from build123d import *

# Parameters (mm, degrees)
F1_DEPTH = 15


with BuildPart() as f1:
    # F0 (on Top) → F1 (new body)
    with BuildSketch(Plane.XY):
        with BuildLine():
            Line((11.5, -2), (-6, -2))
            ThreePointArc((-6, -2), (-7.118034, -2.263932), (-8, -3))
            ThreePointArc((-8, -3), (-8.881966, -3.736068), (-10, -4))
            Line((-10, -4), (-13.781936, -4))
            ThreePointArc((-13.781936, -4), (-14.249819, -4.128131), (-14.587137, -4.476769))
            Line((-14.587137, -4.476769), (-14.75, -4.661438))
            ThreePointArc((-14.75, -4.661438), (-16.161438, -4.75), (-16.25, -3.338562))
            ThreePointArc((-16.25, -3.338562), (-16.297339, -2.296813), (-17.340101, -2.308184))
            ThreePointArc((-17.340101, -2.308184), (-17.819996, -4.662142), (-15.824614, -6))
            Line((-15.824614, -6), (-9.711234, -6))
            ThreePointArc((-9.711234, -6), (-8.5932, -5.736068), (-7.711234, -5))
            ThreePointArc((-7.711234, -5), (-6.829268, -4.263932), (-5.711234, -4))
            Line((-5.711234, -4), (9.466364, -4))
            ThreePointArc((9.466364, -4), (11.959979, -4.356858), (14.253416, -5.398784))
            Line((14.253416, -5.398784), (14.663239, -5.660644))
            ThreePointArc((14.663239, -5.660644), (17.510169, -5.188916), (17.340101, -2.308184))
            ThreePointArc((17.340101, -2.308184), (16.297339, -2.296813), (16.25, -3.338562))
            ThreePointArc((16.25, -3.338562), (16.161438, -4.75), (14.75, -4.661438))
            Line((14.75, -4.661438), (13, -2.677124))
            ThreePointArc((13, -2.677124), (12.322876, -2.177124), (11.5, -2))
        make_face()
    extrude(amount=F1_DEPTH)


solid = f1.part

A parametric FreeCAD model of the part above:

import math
import FreeCAD as App
import Part
import Sketcher

doc = App.newDocument("Part")
body = doc.addObject("PartDesign::Body", "Body")

# Sketch on XY plane
sketch1 = body.newObject("Sketcher::SketchObject", "Sketch")
sketch1.AttachmentSupport = (doc.getObject("XY_Plane"), [""])
sketch1.MapMode = "FlatFace"
sketch1.addGeometry(Part.LineSegment(App.Vector(11.5, -2, 0), App.Vector(-6, -2, 0)), False)
sketch1.addGeometry(Part.ArcOfCircle(Part.Circle(App.Vector(-6, -4.5, 0), App.Vector(0, 0, 1), 2.5), math.radians(89.999998), math.radians(143.130105)), False)
sketch1.addGeometry(Part.ArcOfCircle(Part.Circle(App.Vector(-10, -1.5, 0), App.Vector(0, 0, 1), 2.5), math.radians(-90.000002), math.radians(-36.869895)), False)
sketch1.addGeometry(Part.LineSegment(App.Vector(-10, -4, 0), App.Vector(-13.781936, -4, 0)), False)
sketch1.addGeometry(Part.ArcOfCircle(Part.Circle(App.Vector(-13.781937, -4.918323, 0), App.Vector(0, 0, 1), 0.918323), math.radians(89.999953), math.radians(151.260597)), False)
sketch1.addGeometry(Part.LineSegment(App.Vector(-14.587137, -4.476769, 0), App.Vector(-14.75, -4.661438, 0)), False)
sketch1.addGeometry(Part.ArcOfCircle(Part.Circle(App.Vector(-15.5, -4, 0), App.Vector(0, 0, 1), 1), math.radians(138.59037), math.radians(318.59037)), False)
sketch1.addGeometry(Part.ArcOfCircle(Part.Circle(App.Vector(-16.812835, -2.842188, 0), App.Vector(0, 0, 1), 0.750447), math.radians(-41.409631), math.radians(134.636233)), False)
sketch1.addGeometry(Part.ArcOfCircle(Part.Circle(App.Vector(-15.824613, -3.843039, 0), App.Vector(0, 0, 1), 2.156961), math.radians(134.636224), math.radians(269.999984)), False)
sketch1.addGeometry(Part.LineSegment(App.Vector(-15.824614, -6, 0), App.Vector(-9.711234, -6, 0)), False)
sketch1.addGeometry(Part.ArcOfCircle(Part.Circle(App.Vector(-9.711234, -3.5, 0), App.Vector(0, 0, 1), 2.5), math.radians(-90.000002), math.radians(-36.869895)), False)
sketch1.addGeometry(Part.ArcOfCircle(Part.Circle(App.Vector(-5.711234, -6.5, 0), App.Vector(0, 0, 1), 2.5), math.radians(89.999998), math.radians(143.130105)), False)
sketch1.addGeometry(Part.LineSegment(App.Vector(-5.711234, -4, 0), App.Vector(9.466364, -4, 0)), False)
sketch1.addGeometry(Part.ArcOfCircle(Part.Circle(App.Vector(9.466363, -12.89075, 0), App.Vector(0, 0, 1), 8.89075), math.radians(57.42312), math.radians(89.999991)), False)
sketch1.addGeometry(Part.LineSegment(App.Vector(14.253416, -5.398784, 0), App.Vector(14.663239, -5.660644, 0)), False)
sketch1.addGeometry(Part.ArcOfCircle(Part.Circle(App.Vector(15.824614, -3.843039, 0), App.Vector(0, 0, 1), 2.156961), math.radians(-122.57691), math.radians(45.363794)), False)
sketch1.addGeometry(Part.ArcOfCircle(Part.Circle(App.Vector(16.812835, -2.842188, 0), App.Vector(0, 0, 1), 0.750447), math.radians(45.363767), math.radians(221.409631)), False)
sketch1.addGeometry(Part.ArcOfCircle(Part.Circle(App.Vector(15.5, -4, 0), App.Vector(0, 0, 1), 1), math.radians(-138.59037), math.radians(41.40963)), False)
sketch1.addGeometry(Part.LineSegment(App.Vector(14.75, -4.661438, 0), App.Vector(13, -2.677124, 0)), False)
sketch1.addGeometry(Part.ArcOfCircle(Part.Circle(App.Vector(11.500002, -3.999997, 0), App.Vector(0, 0, 1), 1.999997), math.radians(41.409591), math.radians(90.000053)), False)
sketch1.addConstraint(Sketcher.Constraint("Coincident", 0, 2, 1, 1))
sketch1.addConstraint(Sketcher.Constraint("Coincident", 1, 2, 2, 2))
sketch1.addConstraint(Sketcher.Constraint("Coincident", 2, 1, 3, 1))
sketch1.addConstraint(Sketcher.Constraint("Coincident", 3, 2, 4, 1))
sketch1.addConstraint(Sketcher.Constraint("Coincident", 4, 2, 5, 1))
sketch1.addConstraint(Sketcher.Constraint("Coincident", 5, 2, 6, 2))
sketch1.addConstraint(Sketcher.Constraint("Coincident", 6, 1, 7, 1))
sketch1.addConstraint(Sketcher.Constraint("Coincident", 7, 2, 8, 1))
sketch1.addConstraint(Sketcher.Constraint("Coincident", 8, 2, 9, 1))
sketch1.addConstraint(Sketcher.Constraint("Coincident", 9, 2, 10, 1))
sketch1.addConstraint(Sketcher.Constraint("Coincident", 10, 2, 11, 2))
sketch1.addConstraint(Sketcher.Constraint("Coincident", 11, 1, 12, 1))
sketch1.addConstraint(Sketcher.Constraint("Coincident", 12, 2, 13, 2))
sketch1.addConstraint(Sketcher.Constraint("Coincident", 13, 1, 14, 1))
sketch1.addConstraint(Sketcher.Constraint("Coincident", 14, 2, 15, 1))
sketch1.addConstraint(Sketcher.Constraint("Coincident", 15, 2, 16, 1))
sketch1.addConstraint(Sketcher.Constraint("Coincident", 16, 2, 17, 2))
sketch1.addConstraint(Sketcher.Constraint("Coincident", 17, 1, 18, 1))
sketch1.addConstraint(Sketcher.Constraint("Coincident", 18, 2, 19, 1))
sketch1.addConstraint(Sketcher.Constraint("Coincident", 19, 2, 0, 1))
sketch1.addConstraint(Sketcher.Constraint("Horizontal", 0))
sketch1.addConstraint(Sketcher.Constraint("Horizontal", 3))
sketch1.addConstraint(Sketcher.Constraint("Horizontal", 9))
sketch1.addConstraint(Sketcher.Constraint("Horizontal", 12))
sketch1.addConstraint(Sketcher.Constraint("Radius", 6, 1.0))
sketch1.addConstraint(Sketcher.Constraint("Radius", 17, 1.0))
sketch1.addConstraint(Sketcher.Constraint("Radius", 1, 2.5))
sketch1.addConstraint(Sketcher.Constraint("Radius", 2, 2.5))
sketch1.addConstraint(Sketcher.Constraint("Radius", 10, 2.5))
sketch1.addConstraint(Sketcher.Constraint("Radius", 11, 2.5))
sketch1.addConstraint(Sketcher.Constraint("DistanceX", 0, 2, 0, 1, 17.5))
sketch1.addConstraint(Sketcher.Constraint("DistanceX", 1, 3, -1, 1, 6.0))
sketch1.addConstraint(Sketcher.Constraint("DistanceX", 2, 3, -1, 1, 10.0))
sketch1.addConstraint(Sketcher.Constraint("DistanceY", 6, 3, -1, 1, 4.0))
sketch1.addConstraint(Sketcher.Constraint("DistanceY", 17, 3, -1, 1, 4.0))
sketch1.addConstraint(Sketcher.Constraint("DistanceX", 0, 2, -1, 1, 6.0))
sketch1.addConstraint(Sketcher.Constraint("DistanceY", 0, 2, -1, 1, 2.0))
sketch1.addConstraint(Sketcher.Constraint("DistanceX", 1, 2, -1, 1, 8.0))
sketch1.addConstraint(Sketcher.Constraint("DistanceX", 2, 1, -1, 1, 10.0))
sketch1.addConstraint(Sketcher.Constraint("DistanceY", 8, 2, -1, 1, 6.0))
sketch1.addConstraint(Sketcher.Constraint("DistanceY", 10, 2, -1, 1, 5.0))
sketch1.addConstraint(Sketcher.Constraint("DistanceY", 11, 1, -1, 1, 4.0))
sketch1.addConstraint(Sketcher.Constraint("DistanceX", -1, 1, 18, 2, 13.0))
sketch1.addConstraint(Sketcher.Constraint("DistanceX", 19, 3, 17, 3, 3.999998))
sketch1.addConstraint(Sketcher.Constraint("DistanceX", 9, 2, 11, 3, 4.0))
sketch1.addConstraint(Sketcher.Constraint("DistanceX", 10, 2, 11, 1, 2.0))
sketch1.addConstraint(Sketcher.Constraint("DistanceX", 6, 3, -1, 1, 15.5))
sketch1.addConstraint(Sketcher.Constraint("DistanceX", -1, 1, 17, 3, 15.5))
sketch1.addConstraint(Sketcher.Constraint("DistanceX", 6, 1, 5, 2, 1.5))
sketch1.addConstraint(Sketcher.Constraint("DistanceX", 17, 1, 16, 2, 1.5))
sketch1.addConstraint(Sketcher.Constraint("DistanceX", 5, 2, -1, 1, 14.75))
sketch1.addConstraint(Sketcher.Constraint("DistanceX", -1, 1, 16, 2, 16.25))
sketch1.addConstraint(Sketcher.Constraint("Radius", 8, 2.156961))
sketch1.addConstraint(Sketcher.Constraint("Radius", 13, 8.89075))
sketch1.addConstraint(Sketcher.Constraint("Radius", 15, 2.156961))
sketch1.addConstraint(Sketcher.Constraint("Radius", 4, 0.918323))
sketch1.addConstraint(Sketcher.Constraint("Radius", 7, 0.750447))
sketch1.addConstraint(Sketcher.Constraint("Radius", 16, 0.750447))
sketch1.addConstraint(Sketcher.Constraint("Radius", 19, 1.999997))
sketch1.addConstraint(Sketcher.Constraint("DistanceX", 9, 1, 9, 2, 6.11338))
sketch1.addConstraint(Sketcher.Constraint("DistanceX", 7, 2, -1, 1, 17.340101))
sketch1.addConstraint(Sketcher.Constraint("DistanceX", -1, 1, 15, 2, 17.340101))
sketch1.addConstraint(Sketcher.Constraint("DistanceX", 7, 3, 4, 3, 3.030898))
sketch1.addConstraint(Sketcher.Constraint("DistanceX", 4, 3, 13, 3, 23.248299))
sketch1.addConstraint(Sketcher.Constraint("DistanceX", 7, 3, 3, 2, 3.030899))
sketch1.addConstraint(Sketcher.Constraint("DistanceX", 4, 2, 4, 3, 0.8052))
sketch1.addConstraint(Sketcher.Constraint("DistanceX", 13, 1, 15, 3, 1.571198))
sketch1.addConstraint(Sketcher.Constraint("DistanceY", 13, 1, 15, 2, 3.0906))
sketch1.addConstraint(Sketcher.Constraint("DistanceY", 17, 1, 15, 3, 0.818399))
sketch1.addConstraint(Sketcher.Constraint("Distance", 14, 0.486339))
sketch1.addConstraint(Sketcher.Constraint("DistanceX", 3, 2, 3, 1, 3.781936))
sketch1.addConstraint(Sketcher.Constraint("DistanceX", 12, 1, 12, 2, 15.177598))
sketch1.addConstraint(Sketcher.Constraint("DistanceX", 8, 3, 10, 3, 6.11338))
pad1 = body.newObject("PartDesign::Pad", "Pad")
pad1.Profile = sketch1
pad1.Length = 15

doc.recompute()
